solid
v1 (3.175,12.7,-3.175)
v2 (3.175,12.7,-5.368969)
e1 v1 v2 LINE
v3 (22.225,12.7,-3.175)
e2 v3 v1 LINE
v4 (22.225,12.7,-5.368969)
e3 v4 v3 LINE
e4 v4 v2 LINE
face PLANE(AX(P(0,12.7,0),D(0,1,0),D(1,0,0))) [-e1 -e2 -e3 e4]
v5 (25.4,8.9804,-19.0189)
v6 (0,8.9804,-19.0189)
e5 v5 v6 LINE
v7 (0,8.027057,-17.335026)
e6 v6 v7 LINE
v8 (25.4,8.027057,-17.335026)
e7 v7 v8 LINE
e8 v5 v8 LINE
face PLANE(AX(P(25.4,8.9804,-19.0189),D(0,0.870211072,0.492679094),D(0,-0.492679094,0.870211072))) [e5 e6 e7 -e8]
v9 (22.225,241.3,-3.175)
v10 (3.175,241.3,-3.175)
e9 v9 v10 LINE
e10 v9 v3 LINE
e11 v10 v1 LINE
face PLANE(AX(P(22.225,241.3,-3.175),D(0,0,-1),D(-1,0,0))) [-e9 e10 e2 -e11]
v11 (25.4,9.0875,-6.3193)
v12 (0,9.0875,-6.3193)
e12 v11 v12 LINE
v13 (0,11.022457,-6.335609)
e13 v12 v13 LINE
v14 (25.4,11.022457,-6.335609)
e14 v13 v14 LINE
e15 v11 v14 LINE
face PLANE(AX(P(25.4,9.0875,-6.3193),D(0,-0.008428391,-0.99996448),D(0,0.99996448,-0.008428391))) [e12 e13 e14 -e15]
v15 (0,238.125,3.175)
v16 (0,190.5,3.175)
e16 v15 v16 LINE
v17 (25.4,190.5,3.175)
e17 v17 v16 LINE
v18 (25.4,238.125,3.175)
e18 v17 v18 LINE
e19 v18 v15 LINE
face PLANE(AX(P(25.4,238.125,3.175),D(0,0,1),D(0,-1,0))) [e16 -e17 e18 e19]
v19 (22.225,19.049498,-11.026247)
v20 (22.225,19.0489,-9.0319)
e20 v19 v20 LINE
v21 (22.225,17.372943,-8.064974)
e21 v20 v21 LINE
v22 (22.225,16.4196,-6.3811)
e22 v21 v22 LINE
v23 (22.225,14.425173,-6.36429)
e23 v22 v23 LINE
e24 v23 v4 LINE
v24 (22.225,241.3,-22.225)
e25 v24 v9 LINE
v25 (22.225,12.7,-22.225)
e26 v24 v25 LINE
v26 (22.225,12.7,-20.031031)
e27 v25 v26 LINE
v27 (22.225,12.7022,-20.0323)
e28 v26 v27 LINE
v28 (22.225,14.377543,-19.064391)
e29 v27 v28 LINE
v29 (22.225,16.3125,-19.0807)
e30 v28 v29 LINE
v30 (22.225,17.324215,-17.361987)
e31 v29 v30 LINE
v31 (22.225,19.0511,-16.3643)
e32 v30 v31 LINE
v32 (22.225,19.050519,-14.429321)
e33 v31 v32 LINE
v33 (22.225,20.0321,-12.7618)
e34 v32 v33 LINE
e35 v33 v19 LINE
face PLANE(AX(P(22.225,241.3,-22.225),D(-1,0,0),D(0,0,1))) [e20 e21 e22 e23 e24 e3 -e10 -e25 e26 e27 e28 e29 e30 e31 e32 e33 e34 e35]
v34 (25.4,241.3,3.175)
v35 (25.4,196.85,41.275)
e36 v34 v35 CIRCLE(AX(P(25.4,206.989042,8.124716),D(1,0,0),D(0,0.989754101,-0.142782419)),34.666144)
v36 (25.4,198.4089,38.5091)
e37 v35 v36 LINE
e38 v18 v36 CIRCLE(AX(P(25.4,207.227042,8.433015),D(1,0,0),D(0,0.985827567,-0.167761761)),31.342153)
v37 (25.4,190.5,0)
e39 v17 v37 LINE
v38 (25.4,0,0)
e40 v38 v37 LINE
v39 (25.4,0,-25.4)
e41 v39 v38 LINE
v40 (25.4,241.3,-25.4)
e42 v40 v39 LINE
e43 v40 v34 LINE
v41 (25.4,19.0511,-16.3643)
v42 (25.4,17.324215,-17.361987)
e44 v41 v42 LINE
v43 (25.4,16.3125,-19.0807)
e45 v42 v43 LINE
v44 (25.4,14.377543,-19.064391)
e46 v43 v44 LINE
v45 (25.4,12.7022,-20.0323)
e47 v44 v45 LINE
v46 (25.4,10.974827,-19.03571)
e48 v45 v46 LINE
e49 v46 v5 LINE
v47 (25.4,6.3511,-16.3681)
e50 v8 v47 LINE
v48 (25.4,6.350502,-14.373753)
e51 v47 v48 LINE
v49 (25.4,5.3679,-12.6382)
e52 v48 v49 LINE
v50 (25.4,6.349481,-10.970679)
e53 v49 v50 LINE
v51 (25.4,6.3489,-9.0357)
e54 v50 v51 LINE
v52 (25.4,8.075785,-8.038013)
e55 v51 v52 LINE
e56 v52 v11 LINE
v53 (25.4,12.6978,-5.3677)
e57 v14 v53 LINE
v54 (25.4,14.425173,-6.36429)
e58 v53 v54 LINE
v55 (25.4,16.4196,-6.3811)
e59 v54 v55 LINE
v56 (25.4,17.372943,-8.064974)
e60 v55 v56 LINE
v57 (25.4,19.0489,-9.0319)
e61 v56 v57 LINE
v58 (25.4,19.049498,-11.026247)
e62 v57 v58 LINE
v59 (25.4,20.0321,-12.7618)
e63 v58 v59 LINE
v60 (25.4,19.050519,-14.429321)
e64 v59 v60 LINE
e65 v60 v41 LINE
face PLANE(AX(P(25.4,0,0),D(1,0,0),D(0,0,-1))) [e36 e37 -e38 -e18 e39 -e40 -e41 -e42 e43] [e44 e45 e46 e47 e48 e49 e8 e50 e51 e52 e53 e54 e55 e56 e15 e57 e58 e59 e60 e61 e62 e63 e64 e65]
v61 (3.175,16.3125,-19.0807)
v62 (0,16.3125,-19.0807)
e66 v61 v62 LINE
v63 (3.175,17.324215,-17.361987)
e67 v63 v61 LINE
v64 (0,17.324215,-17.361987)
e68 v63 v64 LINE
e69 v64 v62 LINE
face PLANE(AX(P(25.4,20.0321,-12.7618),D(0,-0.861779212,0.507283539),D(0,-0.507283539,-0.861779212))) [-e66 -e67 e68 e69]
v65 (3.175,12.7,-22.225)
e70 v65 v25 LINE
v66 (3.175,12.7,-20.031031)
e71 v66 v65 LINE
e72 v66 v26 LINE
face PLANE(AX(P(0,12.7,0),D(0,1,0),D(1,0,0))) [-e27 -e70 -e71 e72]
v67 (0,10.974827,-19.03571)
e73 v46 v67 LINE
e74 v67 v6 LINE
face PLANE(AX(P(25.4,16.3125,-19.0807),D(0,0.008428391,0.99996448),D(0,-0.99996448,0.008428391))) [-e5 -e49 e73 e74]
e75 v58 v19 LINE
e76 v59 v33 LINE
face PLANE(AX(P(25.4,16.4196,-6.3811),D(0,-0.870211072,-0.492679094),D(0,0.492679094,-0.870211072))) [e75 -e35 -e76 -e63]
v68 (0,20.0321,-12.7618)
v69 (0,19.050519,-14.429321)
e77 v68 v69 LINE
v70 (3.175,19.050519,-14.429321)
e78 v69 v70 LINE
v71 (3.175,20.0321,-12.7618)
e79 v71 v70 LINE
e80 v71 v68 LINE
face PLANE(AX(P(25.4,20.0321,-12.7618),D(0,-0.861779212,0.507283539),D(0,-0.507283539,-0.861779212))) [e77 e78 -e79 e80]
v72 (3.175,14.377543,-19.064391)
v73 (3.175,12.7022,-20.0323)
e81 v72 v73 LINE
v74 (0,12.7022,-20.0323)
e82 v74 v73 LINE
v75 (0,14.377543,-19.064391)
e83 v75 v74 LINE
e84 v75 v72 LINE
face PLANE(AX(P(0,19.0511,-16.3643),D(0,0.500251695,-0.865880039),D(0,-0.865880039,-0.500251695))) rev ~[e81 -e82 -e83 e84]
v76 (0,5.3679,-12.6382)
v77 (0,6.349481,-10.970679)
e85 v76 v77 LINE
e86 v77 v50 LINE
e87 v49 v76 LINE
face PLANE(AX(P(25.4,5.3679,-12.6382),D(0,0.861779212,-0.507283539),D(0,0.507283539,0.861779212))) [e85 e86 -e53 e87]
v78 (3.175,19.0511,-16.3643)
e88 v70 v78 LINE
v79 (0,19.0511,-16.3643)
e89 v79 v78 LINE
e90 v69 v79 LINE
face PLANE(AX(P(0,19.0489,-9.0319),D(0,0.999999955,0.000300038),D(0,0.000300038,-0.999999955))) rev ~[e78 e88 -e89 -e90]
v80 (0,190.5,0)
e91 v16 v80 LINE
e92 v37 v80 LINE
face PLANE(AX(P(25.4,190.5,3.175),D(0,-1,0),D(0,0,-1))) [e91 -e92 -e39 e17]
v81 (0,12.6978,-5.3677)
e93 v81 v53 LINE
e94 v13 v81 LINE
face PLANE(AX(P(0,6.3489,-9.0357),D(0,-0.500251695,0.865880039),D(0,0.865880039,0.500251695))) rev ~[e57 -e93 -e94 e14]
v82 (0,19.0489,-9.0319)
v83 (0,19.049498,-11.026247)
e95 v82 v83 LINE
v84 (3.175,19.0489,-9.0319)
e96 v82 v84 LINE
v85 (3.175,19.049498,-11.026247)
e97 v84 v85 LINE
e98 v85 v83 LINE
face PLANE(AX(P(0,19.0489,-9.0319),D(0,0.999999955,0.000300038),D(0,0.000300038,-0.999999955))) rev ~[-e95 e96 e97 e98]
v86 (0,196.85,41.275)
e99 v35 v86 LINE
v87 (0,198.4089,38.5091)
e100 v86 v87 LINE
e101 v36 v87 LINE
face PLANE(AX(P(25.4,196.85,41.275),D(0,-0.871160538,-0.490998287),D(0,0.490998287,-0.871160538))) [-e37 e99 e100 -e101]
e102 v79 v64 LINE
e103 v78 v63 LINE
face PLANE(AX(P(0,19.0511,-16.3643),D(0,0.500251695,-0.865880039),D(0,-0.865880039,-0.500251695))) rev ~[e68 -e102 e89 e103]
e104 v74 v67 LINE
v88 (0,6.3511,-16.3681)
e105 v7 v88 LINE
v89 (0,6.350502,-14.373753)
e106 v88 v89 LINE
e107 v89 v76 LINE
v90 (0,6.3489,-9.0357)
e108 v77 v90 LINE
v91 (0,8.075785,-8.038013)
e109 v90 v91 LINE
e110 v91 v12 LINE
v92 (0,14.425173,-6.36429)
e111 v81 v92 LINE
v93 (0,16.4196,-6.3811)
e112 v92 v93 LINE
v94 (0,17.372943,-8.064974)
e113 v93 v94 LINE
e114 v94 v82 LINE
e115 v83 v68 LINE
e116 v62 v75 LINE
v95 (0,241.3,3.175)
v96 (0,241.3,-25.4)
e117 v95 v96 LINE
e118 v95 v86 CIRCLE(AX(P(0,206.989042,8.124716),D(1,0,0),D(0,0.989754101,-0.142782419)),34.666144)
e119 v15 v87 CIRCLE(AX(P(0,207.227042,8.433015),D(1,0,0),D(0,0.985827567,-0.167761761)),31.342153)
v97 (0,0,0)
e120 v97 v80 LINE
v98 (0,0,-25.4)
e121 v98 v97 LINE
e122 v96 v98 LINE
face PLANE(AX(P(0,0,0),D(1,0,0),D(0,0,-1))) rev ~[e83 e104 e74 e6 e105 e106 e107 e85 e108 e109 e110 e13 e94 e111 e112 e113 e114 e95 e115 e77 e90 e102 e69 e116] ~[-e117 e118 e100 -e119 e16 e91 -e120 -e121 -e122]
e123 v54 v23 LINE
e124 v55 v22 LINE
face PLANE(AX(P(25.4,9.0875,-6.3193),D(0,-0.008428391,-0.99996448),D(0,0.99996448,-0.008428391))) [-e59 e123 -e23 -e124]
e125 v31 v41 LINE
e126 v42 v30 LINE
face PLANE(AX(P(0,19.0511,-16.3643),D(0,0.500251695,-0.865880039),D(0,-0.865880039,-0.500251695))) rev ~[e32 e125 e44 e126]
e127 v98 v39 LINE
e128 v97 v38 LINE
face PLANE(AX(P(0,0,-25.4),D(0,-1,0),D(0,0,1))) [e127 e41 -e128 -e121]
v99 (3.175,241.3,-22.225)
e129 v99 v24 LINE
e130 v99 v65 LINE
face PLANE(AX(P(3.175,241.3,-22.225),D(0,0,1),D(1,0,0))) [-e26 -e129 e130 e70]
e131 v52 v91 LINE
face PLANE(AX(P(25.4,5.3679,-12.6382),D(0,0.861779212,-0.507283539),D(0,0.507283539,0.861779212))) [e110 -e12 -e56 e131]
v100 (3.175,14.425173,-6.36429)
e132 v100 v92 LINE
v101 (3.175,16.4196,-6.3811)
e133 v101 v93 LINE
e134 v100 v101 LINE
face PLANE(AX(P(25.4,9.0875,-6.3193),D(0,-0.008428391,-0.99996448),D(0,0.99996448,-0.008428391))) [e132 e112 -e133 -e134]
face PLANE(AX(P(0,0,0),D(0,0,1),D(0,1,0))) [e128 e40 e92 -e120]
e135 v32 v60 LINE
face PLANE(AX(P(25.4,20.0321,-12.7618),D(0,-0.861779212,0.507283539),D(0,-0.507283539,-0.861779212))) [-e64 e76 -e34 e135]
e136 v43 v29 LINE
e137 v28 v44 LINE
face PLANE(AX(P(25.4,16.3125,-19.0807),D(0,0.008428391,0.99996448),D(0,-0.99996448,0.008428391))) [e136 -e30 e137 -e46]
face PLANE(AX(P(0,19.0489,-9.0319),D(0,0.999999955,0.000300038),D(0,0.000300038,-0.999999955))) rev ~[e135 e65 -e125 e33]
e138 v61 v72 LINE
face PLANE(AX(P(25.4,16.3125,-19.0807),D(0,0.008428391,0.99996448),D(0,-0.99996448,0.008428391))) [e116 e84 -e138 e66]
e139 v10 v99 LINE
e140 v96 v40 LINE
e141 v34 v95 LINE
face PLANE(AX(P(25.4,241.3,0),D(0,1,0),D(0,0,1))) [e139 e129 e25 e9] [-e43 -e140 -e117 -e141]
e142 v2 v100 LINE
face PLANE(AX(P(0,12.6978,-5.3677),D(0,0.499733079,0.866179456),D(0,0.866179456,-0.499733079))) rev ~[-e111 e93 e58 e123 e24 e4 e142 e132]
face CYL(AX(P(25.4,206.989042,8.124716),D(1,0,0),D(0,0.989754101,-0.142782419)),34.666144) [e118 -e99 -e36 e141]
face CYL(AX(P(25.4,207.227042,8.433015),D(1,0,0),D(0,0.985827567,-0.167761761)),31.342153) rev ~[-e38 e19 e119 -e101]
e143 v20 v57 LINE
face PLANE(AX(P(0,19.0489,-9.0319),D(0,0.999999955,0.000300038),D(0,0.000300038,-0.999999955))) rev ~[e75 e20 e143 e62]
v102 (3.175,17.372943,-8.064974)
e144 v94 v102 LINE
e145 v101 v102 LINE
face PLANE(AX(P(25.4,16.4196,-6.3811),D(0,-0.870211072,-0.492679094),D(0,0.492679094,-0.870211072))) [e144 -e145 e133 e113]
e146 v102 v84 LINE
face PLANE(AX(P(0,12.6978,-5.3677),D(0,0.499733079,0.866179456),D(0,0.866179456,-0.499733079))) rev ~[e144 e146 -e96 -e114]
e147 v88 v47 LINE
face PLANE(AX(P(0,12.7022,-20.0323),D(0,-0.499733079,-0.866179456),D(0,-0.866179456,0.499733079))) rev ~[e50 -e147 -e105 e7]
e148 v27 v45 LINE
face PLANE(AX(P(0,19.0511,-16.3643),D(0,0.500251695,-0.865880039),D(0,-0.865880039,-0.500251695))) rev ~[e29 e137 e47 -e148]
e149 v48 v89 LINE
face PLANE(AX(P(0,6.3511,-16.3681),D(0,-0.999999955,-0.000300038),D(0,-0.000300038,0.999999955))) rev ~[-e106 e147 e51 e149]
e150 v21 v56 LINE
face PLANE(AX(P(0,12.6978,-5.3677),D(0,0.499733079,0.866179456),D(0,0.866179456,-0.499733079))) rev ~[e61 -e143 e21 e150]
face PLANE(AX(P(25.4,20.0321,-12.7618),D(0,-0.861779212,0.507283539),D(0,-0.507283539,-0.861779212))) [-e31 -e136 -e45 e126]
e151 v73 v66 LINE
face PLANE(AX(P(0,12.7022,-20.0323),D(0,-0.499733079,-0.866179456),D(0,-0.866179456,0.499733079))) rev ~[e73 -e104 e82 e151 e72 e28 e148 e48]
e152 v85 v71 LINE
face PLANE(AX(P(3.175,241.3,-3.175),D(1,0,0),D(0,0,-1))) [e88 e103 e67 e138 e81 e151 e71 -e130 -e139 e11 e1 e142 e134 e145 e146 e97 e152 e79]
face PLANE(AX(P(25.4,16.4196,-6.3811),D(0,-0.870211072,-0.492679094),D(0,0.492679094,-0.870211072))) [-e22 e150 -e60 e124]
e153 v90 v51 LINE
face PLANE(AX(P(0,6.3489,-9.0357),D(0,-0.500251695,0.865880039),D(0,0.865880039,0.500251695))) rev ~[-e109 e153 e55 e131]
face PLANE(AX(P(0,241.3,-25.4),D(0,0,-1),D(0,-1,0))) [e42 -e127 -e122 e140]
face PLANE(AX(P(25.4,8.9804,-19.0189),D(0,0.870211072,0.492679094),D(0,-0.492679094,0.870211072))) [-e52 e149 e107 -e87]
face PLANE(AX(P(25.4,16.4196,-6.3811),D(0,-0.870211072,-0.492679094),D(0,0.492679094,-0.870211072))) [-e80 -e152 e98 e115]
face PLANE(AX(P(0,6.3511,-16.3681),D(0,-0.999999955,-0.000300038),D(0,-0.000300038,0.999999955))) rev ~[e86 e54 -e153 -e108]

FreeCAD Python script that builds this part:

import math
import FreeCAD as App
import Part
import Sketcher

V = App.Vector
Q = App.Units.Quantity

doc = App.newDocument("Part")
body = doc.addObject("PartDesign::Body", "Body")

# Sketch on YZ plane
sketch1 = doc.addObject("Sketcher::SketchObject", "Sketch")
body.addObject(sketch1)
sketch1.AttachmentSupport = (doc.YZ_Plane, [""])
sketch1.MapMode = "FlatFace"
sketch1.addGeometry([
    Part.LineSegment(V(241, 0, 0), V(0, 0, 0)),  # 0
    Part.LineSegment(V(0, 0, 0), V(0, -25, 0)),  # 1
    Part.LineSegment(V(0, -25, 0), V(241, -25, 0)),  # 2
    Part.LineSegment(V(241, -25, 0), V(241, 0, 0)),  # 3
    Part.LineSegment(V(6, -16, 0), V(6, -9, 0)),  # 4
    Part.LineSegment(V(6, -9, 0), V(13, -5, 0)),  # 5
    Part.LineSegment(V(13, -5, 0), V(19, -9, 0)),  # 6
    Part.LineSegment(V(19, -9, 0), V(19, -16, 0)),  # 7
    Part.LineSegment(V(19, -16, 0), V(13, -20, 0)),  # 8
    Part.LineSegment(V(13, -20, 0), V(6, -16, 0)),  # 9
], False)
sketch1.addConstraint([
    Sketcher.Constraint("Coincident", 0, 2, 1, 1),
    Sketcher.Constraint("Coincident", 1, 2, 2, 1),
    Sketcher.Constraint("Coincident", 2, 2, 3, 1),
    Sketcher.Constraint("Coincident", 3, 2, 0, 1),
    Sketcher.Constraint("Coincident", 4, 2, 5, 1),
    Sketcher.Constraint("Coincident", 5, 2, 6, 1),
    Sketcher.Constraint("Coincident", 6, 2, 7, 1),
    Sketcher.Constraint("Coincident", 7, 2, 8, 1),
    Sketcher.Constraint("Coincident", 8, 2, 9, 1),
    Sketcher.Constraint("Coincident", 9, 2, 4, 1),
    Sketcher.Constraint("Horizontal", 0),
    Sketcher.Constraint("Vertical", 1),
    Sketcher.Constraint("Horizontal", 2),
    Sketcher.Constraint("Vertical", 3),
    Sketcher.Constraint("Coincident", 0, 2, -1, 1),
    Sketcher.Constraint("Parallel", 4, 7),
    Sketcher.Constraint("Parallel", 5, 8),
    Sketcher.Constraint("Parallel", 6, 9),
    Sketcher.Constraint("Equal", 4, 5),
    Sketcher.Constraint("Equal", 5, 6),
    Sketcher.Constraint("Equal", 6, 7),
    Sketcher.Constraint("DistanceY", 1, 2, 1, 1, Q("1 in")),
    Sketcher.Constraint("DistanceX", 0, 2, 0, 1, Q("9.5 in")),
    Sketcher.Constraint("DistanceX", 4, 2, 6, 2, Q("0.5 in")),
    Sketcher.Constraint("DistanceY", 4, 2, 5, 2, Q("0.1444 in")),
    Sketcher.Constraint("Distance", 4, Q("7.3324 mm")),
    Sketcher.Constraint("DistanceX", -1, 1, 4, 2, Q("6.349 mm")),
    Sketcher.Constraint("DistanceY", 4, 2, -1, 1, Q("9.0357 mm")),
    Sketcher.Constraint("DistanceX", -1, 1, 7, 2, Q("19.051 mm")),
])
pad1 = doc.addObject("PartDesign::Pad", "Pad")
body.addObject(pad1)
pad1.Profile = sketch1
pad1.Length = Q("1 in")

# Sketch on XZ plane
sketch2 = doc.addObject("Sketcher::SketchObject", "Sketch001")
body.addObject(sketch2)
sketch2.AttachmentSupport = (doc.XZ_Plane, [""])
sketch2.MapMode = "FlatFace"
sketch2.AttachmentOffset = App.Placement(V(0, 0, -9.5 * 25.4), App.Rotation())
sketch2.addGeometry([
    Part.LineSegment(V(3, -3, 0), V(22, -3, 0)),
    Part.LineSegment(V(22, -3, 0), V(22, -22, 0)),
    Part.LineSegment(V(22, -22, 0), V(3, -22, 0)),
    Part.LineSegment(V(3, -22, 0), V(3, -3, 0)),
], False)
sketch2.addConstraint([
    Sketcher.Constraint("Coincident", 0, 2, 1, 1),
    Sketcher.Constraint("Coincident", 1, 2, 2, 1),
    Sketcher.Constraint("Coincident", 2, 2, 3, 1),
    Sketcher.Constraint("Coincident", 3, 2, 0, 1),
    Sketcher.Constraint("Horizontal", 0),
    Sketcher.Constraint("Vertical", 1),
    Sketcher.Constraint("Horizontal", 2),
    Sketcher.Constraint("Vertical", 3),
    Sketcher.Constraint("Equal", 2, 1),
    Sketcher.Constraint("DistanceY", 0, 2, -1, 1, Q("0.125 in")),
    Sketcher.Constraint("DistanceX", -1, 1, 2, 2, Q("0.125 in")),
    Sketcher.Constraint("DistanceX", 0, 1, 0, 2, Q("0.75 in")),
])
pocket1 = doc.addObject("PartDesign::Pocket", "Pocket")
body.addObject(pocket1)
pocket1.Profile = sketch2
pocket1.Length = Q("9 in")
pocket1.Reversed = True

# Sketch on YZ plane
sketch3 = doc.addObject("Sketcher::SketchObject", "Sketch002")
body.addObject(sketch3)
sketch3.AttachmentSupport = (doc.YZ_Plane, [""])
sketch3.MapMode = "FlatFace"
sketch3.AttachmentOffset = App.Placement(V(0, 0, 1 * 25.4), App.Rotation())
sketch3.addGeometry([
    Part.LineSegment(V(190.5, 0, 0), V(241.3, 0, 0)),
    Part.LineSegment(V(241.3, 0, 0), V(241.3, 3.2, 0)),
    Part.LineSegment(V(241.3, 3.2, 0), V(190.5, 3.2, 0)),
    Part.LineSegment(V(190.5, 3.2, 0), V(190.5, 0, 0)),
], False)
sketch3.addConstraint([
    Sketcher.Constraint("Coincident", 0, 2, 1, 1),
    Sketcher.Constraint("Coincident", 1, 2, 2, 1),
    Sketcher.Constraint("Coincident", 2, 2, 3, 1),
    Sketcher.Constraint("Coincident", 3, 2, 0, 1),
    Sketcher.Constraint("Horizontal", 0),
    Sketcher.Constraint("Vertical", 1),
    Sketcher.Constraint("Horizontal", 2),
    Sketcher.Constraint("Vertical", 3),
    Sketcher.Constraint("PointOnObject", 0, 2, -1),
    Sketcher.Constraint("DistanceX", 0, 1, 0, 2, Q("2 in")),
    Sketcher.Constraint("DistanceY", 1, 1, 1, 2, Q("0.125 in")),
    Sketcher.Constraint("DistanceX", -1, 1, 0, 2, Q("9.5 in")),
])
pad2 = doc.addObject("PartDesign::Pad", "Pad001")
body.addObject(pad2)
pad2.Profile = sketch3
pad2.Length = Q("1 in")
pad2.Reversed = True

# Sketch on YZ plane
sketch4 = doc.addObject("Sketcher::SketchObject", "Sketch003")
body.addObject(sketch4)
sketch4.AttachmentSupport = (doc.YZ_Plane, [""])
sketch4.MapMode = "FlatFace"
sketch4.AttachmentOffset = App.Placement(V(0, 0, 1 * 25.4), App.Rotation())
sketch4.addGeometry([
    Part.LineSegment(V(238.1, 3.2, 0), V(241.3, 3.2, 0)),
    Part.ArcOfCircle(Part.Circle(V(207, 8.1, 0), V(0, 0, 1), 34.7), math.radians(-8), math.radians(107)),
    Part.LineSegment(V(196.8, 41.3, 0), V(198.4, 38.5, 0)),
    Part.ArcOfCircle(Part.Circle(V(207.2, 8.4, 0), V(0, 0, 1), 31.3), math.radians(-10), math.radians(106)),
], False)
sketch4.addConstraint([
    Sketcher.Constraint("Coincident", 0, 2, 1, 1),
    Sketcher.Constraint("Coincident", 1, 2, 2, 1),
    Sketcher.Constraint("Coincident", 2, 2, 3, 2),
    Sketcher.Constraint("Coincident", 3, 1, 0, 1),
    Sketcher.Constraint("Horizontal", 0),
    Sketcher.Constraint("DistanceY", 0, 2, 1, 2, Q("1.5 in")),
    Sketcher.Constraint("DistanceX", 0, 1, 0, 2, Q("0.125 in")),
    Sketcher.Constraint("DistanceX", 1, 2, 0, 2, Q("1.75 in")),
    Sketcher.Constraint("Distance", 2, Q("0.125 in")),
    Sketcher.Constraint("DistanceY", -1, 1, 0, 2, Q("0.125 in")),
    Sketcher.Constraint("DistanceX", -1, 1, 0, 2, Q("9.5 in")),
    Sketcher.Constraint("Radius", 1, Q("1.3648 in")),
    Sketcher.Constraint("Radius", 3, Q("31.3422 mm")),
    Sketcher.Constraint("DistanceY", -1, 1, 3, 3, Q("0.332 in")),
])
pad3 = doc.addObject("PartDesign::Pad", "Pad002")
body.addObject(pad3)
pad3.Profile = sketch4
pad3.Length = Q("1 in")
pad3.Reversed = True

# Sketch on YZ plane
sketch5 = doc.addObject("Sketcher::SketchObject", "Sketch004")
body.addObject(sketch5)
sketch5.AttachmentSupport = (doc.YZ_Plane, [""])
sketch5.MapMode = "FlatFace"
sketch5.AttachmentOffset = App.Placement(V(0, 0, 1 * 25.4), App.Rotation())
sketch5.addGeometry([
    Part.LineSegment(V(16, -19, 0), V(20, -13, 0)),  # 0
    Part.LineSegment(V(20, -13, 0), V(16, -6, 0)),  # 1
    Part.LineSegment(V(16, -6, 0), V(9, -6, 0)),  # 2
    Part.LineSegment(V(9, -6, 0), V(5, -13, 0)),  # 3
    Part.LineSegment(V(5, -13, 0), V(9, -19, 0)),  # 4
    Part.LineSegment(V(9, -19, 0), V(16, -19, 0)),  # 5
], False)
sketch5.addConstraint([
    Sketcher.Constraint("Coincident", 0, 2, 1, 1),
    Sketcher.Constraint("Coincident", 1, 2, 2, 1),
    Sketcher.Constraint("Coincident", 2, 2, 3, 1),
    Sketcher.Constraint("Coincident", 3, 2, 4, 1),
    Sketcher.Constraint("Coincident", 4, 2, 5, 1),
    Sketcher.Constraint("Coincident", 5, 2, 0, 1),
    Sketcher.Constraint("Parallel", 0, 3),
    Sketcher.Constraint("Parallel", 1, 4),
    Sketcher.Constraint("Parallel", 2, 5),
    Sketcher.Constraint("Equal", 0, 1),
    Sketcher.Constraint("Equal", 1, 2),
    Sketcher.Constraint("Equal", 2, 3),
    Sketcher.Constraint("DistanceY", 4, 2, 2, 2, Q("12.6996 mm")),
    Sketcher.Constraint("DistanceY", 2, 2, -1, 1, Q("0.2488 in")),
    Sketcher.Constraint("DistanceY", 5, 2, -1, 1, Q("0.7512 in")),
    Sketcher.Constraint("DistanceY", 0, 2, 1, 2, Q("0.2512 in")),
    Sketcher.Constraint("DistanceX", 2, 2, 0, 2, Q("0.4309 in")),
    Sketcher.Constraint("DistanceX", -1, 1, 0, 2, Q("20.032 mm")),
])
pocket2 = doc.addObject("PartDesign::Pocket", "Pocket001")
body.addObject(pocket2)
pocket2.Profile = sketch5
pocket2.Length = Q("1 in")

doc.recompute()
